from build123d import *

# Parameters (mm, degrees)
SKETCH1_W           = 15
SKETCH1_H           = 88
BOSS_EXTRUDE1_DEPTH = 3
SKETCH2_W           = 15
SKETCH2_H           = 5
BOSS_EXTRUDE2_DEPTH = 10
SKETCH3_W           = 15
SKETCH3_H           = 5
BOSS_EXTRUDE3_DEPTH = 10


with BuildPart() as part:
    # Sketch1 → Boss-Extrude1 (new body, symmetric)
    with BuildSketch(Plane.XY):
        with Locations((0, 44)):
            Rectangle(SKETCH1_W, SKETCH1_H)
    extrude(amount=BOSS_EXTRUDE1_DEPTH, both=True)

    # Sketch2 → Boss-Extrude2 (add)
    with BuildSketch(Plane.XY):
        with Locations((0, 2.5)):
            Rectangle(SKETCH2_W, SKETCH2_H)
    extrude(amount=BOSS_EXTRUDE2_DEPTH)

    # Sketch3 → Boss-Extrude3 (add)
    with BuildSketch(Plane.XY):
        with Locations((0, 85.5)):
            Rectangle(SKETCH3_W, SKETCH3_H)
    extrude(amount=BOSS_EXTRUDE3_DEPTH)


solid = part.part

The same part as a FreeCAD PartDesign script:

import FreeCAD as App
import Part
import Sketcher
Q = App.Units.Quantity

doc = App.newDocument("Part")
body = doc.addObject("PartDesign::Body", "Body")

sketch1 = body.newObject("Sketcher::SketchObject", "Sketch")
sketch1.AttachmentSupport = (doc.getObject("XY_Plane"), [""])
sketch1.MapMode = "FlatFace"
sketch1.addGeometry(Part.LineSegment(App.Vector(-7.5, 88, 0), App.Vector(-7.5, 0, 0)), False)
sketch1.addGeometry(Part.LineSegment(App.Vector(-7.5, 0, 0), App.Vector(7.5, 0, 0)), False)
sketch1.addGeometry(Part.LineSegment(App.Vector(7.5, 0, 0), App.Vector(7.5, 88, 0)), False)
sketch1.addGeometry(Part.LineSegment(App.Vector(7.5, 88, 0), App.Vector(-7.5, 88, 0)), False)
sketch1.addConstraint(Sketcher.Constraint("Coincident", 0, 2, 1, 1))
sketch1.addConstraint(Sketcher.Constraint("Coincident", 1, 2, 2, 1))
sketch1.addConstraint(Sketcher.Constraint("Coincident", 2, 2, 3, 1))
sketch1.addConstraint(Sketcher.Constraint("Coincident", 3, 2, 0, 1))
sketch1.addConstraint(Sketcher.Constraint("Vertical", 0))
sketch1.addConstraint(Sketcher.Constraint("Horizontal", 1))
sketch1.addConstraint(Sketcher.Constraint("Vertical", 2))
sketch1.addConstraint(Sketcher.Constraint("Horizontal", 3))
sketch1.addConstraint(Sketcher.Constraint("Symmetric", 0, 2, 1, 2, -1, 1))
sketch1.addConstraint(Sketcher.Constraint("DistanceX", 1, 1, 1, 2, Q("15 mm")))
sketch1.addConstraint(Sketcher.Constraint("DistanceY", 0, 2, 0, 1, Q("88 mm")))
pad1 = body.newObject("PartDesign::Pad", "Pad")
pad1.Profile = sketch1
pad1.Length = 6
pad1.Midplane = True

sketch2 = body.newObject("Sketcher::SketchObject", "Sketch001")
sketch2.AttachmentSupport = (doc.getObject("XY_Plane"), [""])
sketch2.MapMode = "FlatFace"
sketch2.addGeometry(Part.LineSegment(App.Vector(-7.5, 5, 0), App.Vector(-7.5, 0, 0)), False)
sketch2.addGeometry(Part.LineSegment(App.Vector(-7.5, 0, 0), App.Vector(7.5, 0, 0)), False)
sketch2.addGeometry(Part.LineSegment(App.Vector(7.5, 0, 0), App.Vector(7.5, 5, 0)), False)
sketch2.addGeometry(Part.LineSegment(App.Vector(7.5, 5, 0), App.Vector(-7.5, 5, 0)), False)
sketch2.addConstraint(Sketcher.Constraint("Coincident", 0, 2, 1, 1))
sketch2.addConstraint(Sketcher.Constraint("Coincident", 1, 2, 2, 1))
sketch2.addConstraint(Sketcher.Constraint("Coincident", 2, 2, 3, 1))
sketch2.addConstraint(Sketcher.Constraint("Coincident", 3, 2, 0, 1))
sketch2.addConstraint(Sketcher.Constraint("Vertical", 0))
sketch2.addConstraint(Sketcher.Constraint("Horizontal", 1))
sketch2.addConstraint(Sketcher.Constraint("Vertical", 2))
sketch2.addConstraint(Sketcher.Constraint("Horizontal", 3))
sketch2.addConstraint(Sketcher.Constraint("Symmetric", 0, 2, 1, 2, -1, 1))
sketch2.addConstraint(Sketcher.Constraint("DistanceX", 1, 1, 1, 2, Q("15 mm")))
sketch2.addConstraint(Sketcher.Constraint("DistanceY", 0, 2, 0, 1, Q("5 mm")))
pad2 = body.newObject("PartDesign::Pad", "Pad001")
pad2.Profile = sketch2
pad2.Length = 10

sketch3 = body.newObject("Sketcher::SketchObject", "Sketch002")
sketch3.AttachmentSupport = (doc.getObject("XY_Plane"), [""])
sketch3.MapMode = "FlatFace"
sketch3.addGeometry(Part.LineSegment(App.Vector(-7.5, 88, 0), App.Vector(-7.5, 83, 0)), False)
sketch3.addGeometry(Part.LineSegment(App.Vector(-7.5, 83, 0), App.Vector(7.5, 83, 0)), False)
sketch3.addGeometry(Part.LineSegment(App.Vector(7.5, 83, 0), App.Vector(7.5, 88, 0)), False)
sketch3.addGeometry(Part.LineSegment(App.Vector(7.5, 88, 0), App.Vector(-7.5, 88, 0)), False)
sketch3.addConstraint(Sketcher.Constraint("Coincident", 0, 2, 1, 1))
sketch3.addConstraint(Sketcher.Constraint("Coincident", 1, 2, 2, 1))
sketch3.addConstraint(Sketcher.Constraint("Coincident", 2, 2, 3, 1))
sketch3.addConstraint(Sketcher.Constraint("Coincident", 3, 2, 0, 1))
sketch3.addConstraint(Sketcher.Constraint("Vertical", 0))
sketch3.addConstraint(Sketcher.Constraint("Horizontal", 1))
sketch3.addConstraint(Sketcher.Constraint("Vertical", 2))
sketch3.addConstraint(Sketcher.Constraint("Horizontal", 3))
sketch3.addConstraint(Sketcher.Constraint("DistanceX", 1, 1, 1, 2, Q("15 mm")))
sketch3.addConstraint(Sketcher.Constraint("DistanceY", 0, 2, 0, 1, Q("5 mm")))
sketch3.addConstraint(Sketcher.Constraint("DistanceY", -1, 1, 0, 2, Q("83 mm")))
sketch3.addConstraint(Sketcher.Constraint("DistanceX", 0, 2, -1, 1, Q("7.5 mm")))
pad3 = body.newObject("PartDesign::Pad", "Pad002")
pad3.Profile = sketch3
pad3.Length = 10

doc.recompute()
